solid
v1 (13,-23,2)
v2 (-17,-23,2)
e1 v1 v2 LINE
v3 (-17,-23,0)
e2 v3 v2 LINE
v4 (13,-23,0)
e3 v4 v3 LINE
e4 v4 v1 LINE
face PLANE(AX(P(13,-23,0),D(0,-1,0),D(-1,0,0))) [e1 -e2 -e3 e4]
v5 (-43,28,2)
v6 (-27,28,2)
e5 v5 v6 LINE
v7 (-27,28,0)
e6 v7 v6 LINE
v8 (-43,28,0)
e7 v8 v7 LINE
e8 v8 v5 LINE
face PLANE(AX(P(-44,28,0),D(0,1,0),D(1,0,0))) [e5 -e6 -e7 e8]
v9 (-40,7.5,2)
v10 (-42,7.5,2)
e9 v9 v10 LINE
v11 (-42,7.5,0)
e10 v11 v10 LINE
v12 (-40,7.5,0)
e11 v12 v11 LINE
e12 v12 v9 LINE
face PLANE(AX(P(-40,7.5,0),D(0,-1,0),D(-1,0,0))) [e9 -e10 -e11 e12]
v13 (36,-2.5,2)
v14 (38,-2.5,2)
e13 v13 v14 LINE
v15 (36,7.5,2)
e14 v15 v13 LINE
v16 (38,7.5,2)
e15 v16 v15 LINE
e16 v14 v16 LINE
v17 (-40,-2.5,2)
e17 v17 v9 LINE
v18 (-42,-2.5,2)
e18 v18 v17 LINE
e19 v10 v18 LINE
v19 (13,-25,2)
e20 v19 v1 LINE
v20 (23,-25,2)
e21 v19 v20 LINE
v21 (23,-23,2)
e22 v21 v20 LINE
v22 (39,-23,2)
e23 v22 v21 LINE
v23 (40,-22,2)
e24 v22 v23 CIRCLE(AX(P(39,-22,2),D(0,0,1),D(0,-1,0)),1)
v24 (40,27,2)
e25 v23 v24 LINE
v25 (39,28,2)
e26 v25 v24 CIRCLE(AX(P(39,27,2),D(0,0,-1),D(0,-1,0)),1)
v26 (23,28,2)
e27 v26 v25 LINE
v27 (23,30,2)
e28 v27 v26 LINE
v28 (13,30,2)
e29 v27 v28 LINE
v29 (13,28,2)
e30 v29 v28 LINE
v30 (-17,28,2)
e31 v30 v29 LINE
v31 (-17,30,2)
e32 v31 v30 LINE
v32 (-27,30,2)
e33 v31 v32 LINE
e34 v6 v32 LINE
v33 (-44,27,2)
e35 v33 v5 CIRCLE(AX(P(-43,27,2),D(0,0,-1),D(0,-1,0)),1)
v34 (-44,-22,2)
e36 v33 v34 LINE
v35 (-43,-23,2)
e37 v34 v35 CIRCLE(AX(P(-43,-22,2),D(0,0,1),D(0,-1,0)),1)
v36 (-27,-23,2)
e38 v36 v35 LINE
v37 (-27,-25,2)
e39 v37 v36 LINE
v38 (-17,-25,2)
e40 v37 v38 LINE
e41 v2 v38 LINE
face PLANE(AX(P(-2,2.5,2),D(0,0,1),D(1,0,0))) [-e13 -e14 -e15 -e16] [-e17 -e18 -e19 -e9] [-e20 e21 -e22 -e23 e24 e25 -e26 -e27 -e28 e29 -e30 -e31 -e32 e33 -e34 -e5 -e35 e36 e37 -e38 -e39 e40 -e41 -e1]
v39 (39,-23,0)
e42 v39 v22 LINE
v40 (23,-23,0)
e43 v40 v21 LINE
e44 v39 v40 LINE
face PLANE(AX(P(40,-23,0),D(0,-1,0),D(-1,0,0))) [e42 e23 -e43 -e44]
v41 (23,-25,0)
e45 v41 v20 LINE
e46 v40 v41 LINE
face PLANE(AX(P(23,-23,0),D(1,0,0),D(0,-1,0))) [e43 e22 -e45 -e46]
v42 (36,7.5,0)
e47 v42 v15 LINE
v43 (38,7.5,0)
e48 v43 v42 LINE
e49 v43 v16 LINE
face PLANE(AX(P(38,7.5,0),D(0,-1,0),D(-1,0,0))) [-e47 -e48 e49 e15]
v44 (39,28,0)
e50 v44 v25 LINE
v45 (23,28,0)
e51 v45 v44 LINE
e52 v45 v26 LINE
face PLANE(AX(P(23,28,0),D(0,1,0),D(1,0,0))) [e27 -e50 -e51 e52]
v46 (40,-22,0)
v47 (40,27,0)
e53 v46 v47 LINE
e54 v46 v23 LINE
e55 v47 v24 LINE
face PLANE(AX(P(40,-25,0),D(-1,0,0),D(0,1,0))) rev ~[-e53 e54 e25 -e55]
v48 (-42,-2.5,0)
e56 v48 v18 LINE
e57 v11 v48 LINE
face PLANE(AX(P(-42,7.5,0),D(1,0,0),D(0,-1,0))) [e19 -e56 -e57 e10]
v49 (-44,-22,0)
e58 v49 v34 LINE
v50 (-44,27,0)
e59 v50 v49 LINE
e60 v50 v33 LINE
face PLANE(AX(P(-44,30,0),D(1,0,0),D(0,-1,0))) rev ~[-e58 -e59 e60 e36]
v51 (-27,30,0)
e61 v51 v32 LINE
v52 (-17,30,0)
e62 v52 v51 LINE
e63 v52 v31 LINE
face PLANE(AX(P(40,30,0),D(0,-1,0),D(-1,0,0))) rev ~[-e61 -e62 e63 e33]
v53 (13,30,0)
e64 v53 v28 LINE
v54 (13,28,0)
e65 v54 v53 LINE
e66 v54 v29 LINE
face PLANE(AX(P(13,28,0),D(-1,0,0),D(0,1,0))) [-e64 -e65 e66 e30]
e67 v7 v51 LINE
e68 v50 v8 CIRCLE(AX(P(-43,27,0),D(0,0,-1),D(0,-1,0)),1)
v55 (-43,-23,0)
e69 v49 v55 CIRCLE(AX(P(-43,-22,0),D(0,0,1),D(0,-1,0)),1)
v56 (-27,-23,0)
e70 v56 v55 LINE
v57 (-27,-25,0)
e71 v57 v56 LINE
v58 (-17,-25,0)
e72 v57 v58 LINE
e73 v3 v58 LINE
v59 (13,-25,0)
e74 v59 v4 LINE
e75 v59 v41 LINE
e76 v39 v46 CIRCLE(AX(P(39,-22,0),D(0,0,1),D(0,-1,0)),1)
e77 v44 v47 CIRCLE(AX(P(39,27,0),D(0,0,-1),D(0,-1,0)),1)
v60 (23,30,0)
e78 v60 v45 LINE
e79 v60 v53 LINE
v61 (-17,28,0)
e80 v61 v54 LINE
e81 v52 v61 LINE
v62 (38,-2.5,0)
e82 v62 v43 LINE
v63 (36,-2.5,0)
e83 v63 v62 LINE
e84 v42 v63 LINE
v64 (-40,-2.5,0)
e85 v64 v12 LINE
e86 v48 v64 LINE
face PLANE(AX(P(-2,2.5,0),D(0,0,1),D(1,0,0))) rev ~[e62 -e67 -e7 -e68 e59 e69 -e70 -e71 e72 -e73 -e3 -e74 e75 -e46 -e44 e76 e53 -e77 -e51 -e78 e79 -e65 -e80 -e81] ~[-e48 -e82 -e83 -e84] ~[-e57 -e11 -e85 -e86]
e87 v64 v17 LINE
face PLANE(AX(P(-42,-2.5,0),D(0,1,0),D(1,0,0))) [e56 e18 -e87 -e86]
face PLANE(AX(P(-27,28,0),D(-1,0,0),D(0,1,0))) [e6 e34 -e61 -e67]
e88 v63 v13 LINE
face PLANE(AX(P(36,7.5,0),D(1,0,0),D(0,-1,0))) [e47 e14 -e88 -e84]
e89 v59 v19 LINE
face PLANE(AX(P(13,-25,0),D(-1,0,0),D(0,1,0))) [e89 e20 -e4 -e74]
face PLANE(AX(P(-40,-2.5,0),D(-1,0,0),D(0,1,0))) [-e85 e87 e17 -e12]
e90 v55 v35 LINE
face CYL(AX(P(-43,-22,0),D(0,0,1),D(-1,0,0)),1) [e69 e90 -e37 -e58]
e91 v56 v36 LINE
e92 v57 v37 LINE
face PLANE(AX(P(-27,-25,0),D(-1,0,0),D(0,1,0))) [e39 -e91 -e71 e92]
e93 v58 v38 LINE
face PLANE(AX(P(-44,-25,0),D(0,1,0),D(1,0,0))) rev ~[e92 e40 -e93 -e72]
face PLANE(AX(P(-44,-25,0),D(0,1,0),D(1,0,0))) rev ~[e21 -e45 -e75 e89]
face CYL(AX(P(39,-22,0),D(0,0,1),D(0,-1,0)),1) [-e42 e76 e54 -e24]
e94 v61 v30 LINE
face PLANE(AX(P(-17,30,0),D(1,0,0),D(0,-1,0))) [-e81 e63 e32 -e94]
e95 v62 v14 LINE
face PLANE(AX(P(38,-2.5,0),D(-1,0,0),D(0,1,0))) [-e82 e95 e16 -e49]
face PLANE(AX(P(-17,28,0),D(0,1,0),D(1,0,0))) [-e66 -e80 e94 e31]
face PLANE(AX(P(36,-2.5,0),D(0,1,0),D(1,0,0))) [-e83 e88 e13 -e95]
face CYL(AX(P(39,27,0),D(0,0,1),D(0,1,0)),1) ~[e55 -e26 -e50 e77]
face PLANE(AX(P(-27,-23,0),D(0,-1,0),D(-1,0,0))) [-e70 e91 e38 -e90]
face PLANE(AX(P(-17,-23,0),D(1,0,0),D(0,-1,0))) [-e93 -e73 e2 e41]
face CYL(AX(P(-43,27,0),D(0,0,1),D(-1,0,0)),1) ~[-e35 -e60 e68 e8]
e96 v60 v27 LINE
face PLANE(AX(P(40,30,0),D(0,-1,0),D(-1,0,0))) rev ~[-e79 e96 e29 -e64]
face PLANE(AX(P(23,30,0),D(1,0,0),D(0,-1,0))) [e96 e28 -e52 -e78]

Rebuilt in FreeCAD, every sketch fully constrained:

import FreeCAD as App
import Part
import Sketcher

V = App.Vector
Q = App.Units.Quantity


def edges_at(feature, points):
    """Names of the edges that pass closest to the given points."""
    edges = feature.Shape.Edges
    near = lambda p: min(range(len(edges)), key=lambda i: edges[i].distToShape(Part.Vertex(*p))[0])
    return sorted({f"Edge{near(p) + 1}" for p in points})


def add_polygon(sketch, points):
    """Adds a closed chain of lines whose ends are joined by coincident constraints."""
    first, n = sketch.GeometryCount, len(points)
    for a, b in zip(points, points[1:] + points[:1]):
        sketch.addGeometry(Part.LineSegment(App.Vector(*a, 0), App.Vector(*b, 0)), False)
    for i in range(n):
        sketch.addConstraint(Sketcher.Constraint("Coincident", first + i, 2, first + (i + 1) % n, 1))

doc = App.newDocument("Part")
params = doc.addObject("Spreadsheet::Sheet", "Params")
for row, (alias, value) in enumerate([
    ("sketch1_width", "84 mm"),
    ("sketch1_height", "55 mm"),
    ("pad1_length", "2 mm"),
    ("sketch2_width", "17 mm"),
    ("sketch2_height", "2 mm"),
    ("pocket1_length", "2 mm"),
    ("sketch3_width", "30 mm"),
    ("sketch3_height", "2 mm"),
    ("pocket2_length", "2 mm"),
    ("sketch4_width", "17 mm"),
    ("sketch4_height", "2 mm"),
    ("pocket3_length", "2 mm"),
    ("sketch5_width", "2 mm"),
    ("sketch5_height", "10 mm"),
    ("pocket4_length", "2 mm"),
    ("sketch6_width", "17 mm"),
    ("sketch6_height", "2 mm"),
    ("pocket5_length", "2 mm"),
    ("sketch7_width", "30 mm"),
    ("sketch7_height", "2 mm"),
    ("pocket6_length", "2 mm"),
    ("sketch8_width", "17 mm"),
    ("sketch8_height", "2 mm"),
    ("pocket7_length", "2 mm"),
    ("sketch9_width", "2 mm"),
    ("sketch9_height", "10 mm"),
    ("pocket8_length", "2 mm"),
    ("fillet_radius", "1 mm"),
    ("fillet2_radius", "1 mm"),
], start=1):
    params.set(f"A{row}", alias)
    params.set(f"B{row}", "=" + value)
    params.setAlias(f"B{row}", alias)

body = doc.addObject("PartDesign::Body", "Body")

sketch1 = doc.addObject("Sketcher::SketchObject", "Sketch")
body.addObject(sketch1)
sketch1.AttachmentSupport = (doc.XY_Plane, [""])
sketch1.MapMode = "FlatFace"
add_polygon(sketch1, [(-44, -25), (40, -25), (40, 30), (-44, 30)])
sketch1.addConstraint([
    Sketcher.Constraint("Horizontal", 0),
    Sketcher.Constraint("Vertical", 1),
    Sketcher.Constraint("Horizontal", 2),
    Sketcher.Constraint("Vertical", 3),
    Sketcher.Constraint("DistanceX", 0, 1, 0, 2, Q("84 mm")),
    Sketcher.Constraint("DistanceY", 1, 1, 1, 2, Q("55 mm")),
    Sketcher.Constraint("DistanceX", -1, 1, 0, 2, Q("40 mm")),
    Sketcher.Constraint("DistanceY", 0, 2, -1, 1, Q("25 mm")),
])
sketch1.setExpression("Constraints[8]", "Params.sketch1_width")
sketch1.setExpression("Constraints[9]", "Params.sketch1_height")
pad1 = doc.addObject("PartDesign::Pad", "Pad")
body.addObject(pad1)
pad1.Profile = sketch1
pad1.setExpression("Length", "Params.pad1_length")

sketch2 = doc.addObject("Sketcher::SketchObject", "Sketch001")
body.addObject(sketch2)
sketch2.AttachmentSupport = (doc.XY_Plane, [""])
sketch2.MapMode = "FlatFace"
add_polygon(sketch2, [(-44, 30), (-44, 28), (-27, 28), (-27, 30)])
sketch2.addConstraint([
    Sketcher.Constraint("Vertical", 0),
    Sketcher.Constraint("Horizontal", 1),
    Sketcher.Constraint("Vertical", 2),
    Sketcher.Constraint("Horizontal", 3),
    Sketcher.Constraint("DistanceX", 1, 1, 1, 2, Q("17 mm")),
    Sketcher.Constraint("DistanceY", 0, 2, 0, 1, Q("2 mm")),
    Sketcher.Constraint("DistanceX", 0, 2, -1, 1, Q("44 mm")),
    Sketcher.Constraint("DistanceY", -1, 1, 0, 2, Q("28 mm")),
])
sketch2.setExpression("Constraints[8]", "Params.sketch2_width")
sketch2.setExpression("Constraints[9]", "Params.sketch2_height")
pocket1 = doc.addObject("PartDesign::Pocket", "Pocket")
body.addObject(pocket1)
pocket1.Profile = sketch2
pocket1.setExpression("Length", "Params.pocket1_length")
pocket1.Reversed = True

sketch3 = doc.addObject("Sketcher::SketchObject", "Sketch002")
body.addObject(sketch3)
sketch3.AttachmentSupport = (doc.XY_Plane, [""])
sketch3.MapMode = "FlatFace"
add_polygon(sketch3, [(-17, 30), (-17, 28), (13, 28), (13, 30)])
sketch3.addConstraint([
    Sketcher.Constraint("Vertical", 0),
    Sketcher.Constraint("Horizontal", 1),
    Sketcher.Constraint("Vertical", 2),
    Sketcher.Constraint("Horizontal", 3),
    Sketcher.Constraint("DistanceX", 1, 1, 1, 2, Q("30 mm")),
    Sketcher.Constraint("DistanceY", 0, 2, 0, 1, Q("2 mm")),
    Sketcher.Constraint("DistanceX", 0, 2, -1, 1, Q("17 mm")),
    Sketcher.Constraint("DistanceY", -1, 1, 0, 2, Q("28 mm")),
])
sketch3.setExpression("Constraints[8]", "Params.sketch3_width")
sketch3.setExpression("Constraints[9]", "Params.sketch3_height")
pocket2 = doc.addObject("PartDesign::Pocket", "Pocket001")
body.addObject(pocket2)
pocket2.Profile = sketch3
pocket2.setExpression("Length", "Params.pocket2_length")
pocket2.Reversed = True

sketch4 = doc.addObject("Sketcher::SketchObject", "Sketch003")
body.addObject(sketch4)
sketch4.AttachmentSupport = (doc.XY_Plane, [""])
sketch4.MapMode = "FlatFace"
add_polygon(sketch4, [(23, 30), (23, 28), (40, 28), (40, 30)])
sketch4.addConstraint([
    Sketcher.Constraint("Vertical", 0),
    Sketcher.Constraint("Horizontal", 1),
    Sketcher.Constraint("Vertical", 2),
    Sketcher.Constraint("Horizontal", 3),
    Sketcher.Constraint("DistanceX", 1, 1, 1, 2, Q("17 mm")),
    Sketcher.Constraint("DistanceY", 0, 2, 0, 1, Q("2 mm")),
    Sketcher.Constraint("DistanceX", -1, 1, 0, 2, Q("23 mm")),
    Sketcher.Constraint("DistanceY", -1, 1, 0, 2, Q("28 mm")),
])
sketch4.setExpression("Constraints[8]", "Params.sketch4_width")
sketch4.setExpression("Constraints[9]", "Params.sketch4_height")
pocket3 = doc.addObject("PartDesign::Pocket", "Pocket002")
body.addObject(pocket3)
pocket3.Profile = sketch4
pocket3.setExpression("Length", "Params.pocket3_length")
pocket3.Reversed = True

sketch5 = doc.addObject("Sketcher::SketchObject", "Sketch004")
body.addObject(sketch5)
sketch5.AttachmentSupport = (doc.XY_Plane, [""])
sketch5.MapMode = "FlatFace"
add_polygon(sketch5, [(36, -2.5), (38, -2.5), (38, 7.5), (36, 7.5)])
sketch5.addConstraint([
    Sketcher.Constraint("Horizontal", 0),
    Sketcher.Constraint("Vertical", 1),
    Sketcher.Constraint("Horizontal", 2),
    Sketcher.Constraint("Vertical", 3),
    Sketcher.Constraint("DistanceX", 0, 1, 0, 2, Q("2 mm")),
    Sketcher.Constraint("DistanceY", 1, 1, 1, 2, Q("10 mm")),
    Sketcher.Constraint("DistanceX", -1, 1, 0, 2, Q("38 mm")),
    Sketcher.Constraint("DistanceY", 0, 2, -1, 1, Q("2.5 mm")),
])
sketch5.setExpression("Constraints[8]", "Params.sketch5_width")
sketch5.setExpression("Constraints[9]", "Params.sketch5_height")
pocket4 = doc.addObject("PartDesign::Pocket", "Pocket003")
body.addObject(pocket4)
pocket4.Profile = sketch5
pocket4.setExpression("Length", "Params.pocket4_length")
pocket4.Reversed = True

sketch6 = doc.addObject("Sketcher::SketchObject", "Sketch005")
body.addObject(sketch6)
sketch6.AttachmentSupport = (doc.XY_Plane, [""])
sketch6.MapMode = "FlatFace"
add_polygon(sketch6, [(40, -25), (40, -23), (23, -23), (23, -25)])
sketch6.addConstraint([
    Sketcher.Constraint("Vertical", 0),
    Sketcher.Constraint("Horizontal", 1),
    Sketcher.Constraint("Vertical", 2),
    Sketcher.Constraint("Horizontal", 3),
    Sketcher.Constraint("DistanceX", 1, 2, 1, 1, Q("17 mm")),
    Sketcher.Constraint("DistanceY", 0, 1, 0, 2, Q("2 mm")),
    Sketcher.Constraint("DistanceX", -1, 1, 0, 2, Q("40 mm")),
    Sketcher.Constraint("DistanceY", 0, 2, -1, 1, Q("23 mm")),
])
sketch6.setExpression("Constraints[8]", "Params.sketch6_width")
sketch6.setExpression("Constraints[9]", "Params.sketch6_height")
pocket5 = doc.addObject("PartDesign::Pocket", "Pocket004")
body.addObject(pocket5)
pocket5.Profile = sketch6
pocket5.setExpression("Length", "Params.pocket5_length")
pocket5.Reversed = True

sketch7 = doc.addObject("Sketcher::SketchObject", "Sketch006")
body.addObject(sketch7)
sketch7.AttachmentSupport = (doc.XY_Plane, [""])
sketch7.MapMode = "FlatFace"
add_polygon(sketch7, [(13, -25), (13, -23), (-17, -23), (-17, -25)])
sketch7.addConstraint([
    Sketcher.Constraint("Vertical", 0),
    Sketcher.Constraint("Horizontal", 1),
    Sketcher.Constraint("Vertical", 2),
    Sketcher.Constraint("Horizontal", 3),
    Sketcher.Constraint("DistanceX", 1, 2, 1, 1, Q("30 mm")),
    Sketcher.Constraint("DistanceY", 0, 1, 0, 2, Q("2 mm")),
    Sketcher.Constraint("DistanceX", -1, 1, 0, 2, Q("13 mm")),
    Sketcher.Constraint("DistanceY", 0, 2, -1, 1, Q("23 mm")),
])
sketch7.setExpression("Constraints[8]", "Params.sketch7_width")
sketch7.setExpression("Constraints[9]", "Params.sketch7_height")
pocket6 = doc.addObject("PartDesign::Pocket", "Pocket005")
body.addObject(pocket6)
pocket6.Profile = sketch7
pocket6.setExpression("Length", "Params.pocket6_length")
pocket6.Reversed = True

sketch8 = doc.addObject("Sketcher::SketchObject", "Sketch007")
body.addObject(sketch8)
sketch8.AttachmentSupport = (doc.XY_Plane, [""])
sketch8.MapMode = "FlatFace"
add_polygon(sketch8, [(-27, -25), (-27, -23), (-44, -23), (-44, -25)])
sketch8.addConstraint([
    Sketcher.Constraint("Vertical", 0),
    Sketcher.Constraint("Horizontal", 1),
    Sketcher.Constraint("Vertical", 2),
    Sketcher.Constraint("Horizontal", 3),
    Sketcher.Constraint("DistanceX", 1, 2, 1, 1, Q("17 mm")),
    Sketcher.Constraint("DistanceY", 0, 1, 0, 2, Q("2 mm")),
    Sketcher.Constraint("DistanceX", 0, 2, -1, 1, Q("27 mm")),
    Sketcher.Constraint("DistanceY", 0, 2, -1, 1, Q("23 mm")),
])
sketch8.setExpression("Constraints[8]", "Params.sketch8_width")
sketch8.setExpression("Constraints[9]", "Params.sketch8_height")
pocket7 = doc.addObject("PartDesign::Pocket", "Pocket006")
body.addObject(pocket7)
pocket7.Profile = sketch8
pocket7.setExpression("Length", "Params.pocket7_length")
pocket7.Reversed = True

sketch9 = doc.addObject("Sketcher::SketchObject", "Sketch008")
body.addObject(sketch9)
sketch9.AttachmentSupport = (doc.XY_Plane, [""])
sketch9.MapMode = "FlatFace"
add_polygon(sketch9, [(-42, -2.5), (-40, -2.5), (-40, 7.5), (-42, 7.5)])
sketch9.addConstraint([
    Sketcher.Constraint("Horizontal", 0),
    Sketcher.Constraint("Vertical", 1),
    Sketcher.Constraint("Horizontal", 2),
    Sketcher.Constraint("Vertical", 3),
    Sketcher.Constraint("DistanceX", 0, 1, 0, 2, Q("2 mm")),
    Sketcher.Constraint("DistanceY", 1, 1, 1, 2, Q("10 mm")),
    Sketcher.Constraint("DistanceX", 0, 2, -1, 1, Q("40 mm")),
    Sketcher.Constraint("DistanceY", 0, 2, -1, 1, Q("2.5 mm")),
])
sketch9.setExpression("Constraints[8]", "Params.sketch9_width")
sketch9.setExpression("Constraints[9]", "Params.sketch9_height")
pocket8 = doc.addObject("PartDesign::Pocket", "Pocket007")
body.addObject(pocket8)
pocket8.Profile = sketch9
pocket8.setExpression("Length", "Params.pocket8_length")
pocket8.Reversed = True
doc.recompute()

fillet = doc.addObject("PartDesign::Fillet", "Fillet")
body.addObject(fillet)
fillet.Base = (pocket8, edges_at(pocket8, [(-44, -23, 1)]))
fillet.setExpression("Radius", "Params.fillet_radius")
doc.recompute()

fillet2 = doc.addObject("PartDesign::Fillet", "Fillet001")
body.addObject(fillet2)
fillet2.Base = (fillet, edges_at(fillet, [(-44, 28, 1), (40, 28, 1), (40, -23, 1)]))
fillet2.setExpression("Radius", "Params.fillet2_radius")

doc.recompute()
